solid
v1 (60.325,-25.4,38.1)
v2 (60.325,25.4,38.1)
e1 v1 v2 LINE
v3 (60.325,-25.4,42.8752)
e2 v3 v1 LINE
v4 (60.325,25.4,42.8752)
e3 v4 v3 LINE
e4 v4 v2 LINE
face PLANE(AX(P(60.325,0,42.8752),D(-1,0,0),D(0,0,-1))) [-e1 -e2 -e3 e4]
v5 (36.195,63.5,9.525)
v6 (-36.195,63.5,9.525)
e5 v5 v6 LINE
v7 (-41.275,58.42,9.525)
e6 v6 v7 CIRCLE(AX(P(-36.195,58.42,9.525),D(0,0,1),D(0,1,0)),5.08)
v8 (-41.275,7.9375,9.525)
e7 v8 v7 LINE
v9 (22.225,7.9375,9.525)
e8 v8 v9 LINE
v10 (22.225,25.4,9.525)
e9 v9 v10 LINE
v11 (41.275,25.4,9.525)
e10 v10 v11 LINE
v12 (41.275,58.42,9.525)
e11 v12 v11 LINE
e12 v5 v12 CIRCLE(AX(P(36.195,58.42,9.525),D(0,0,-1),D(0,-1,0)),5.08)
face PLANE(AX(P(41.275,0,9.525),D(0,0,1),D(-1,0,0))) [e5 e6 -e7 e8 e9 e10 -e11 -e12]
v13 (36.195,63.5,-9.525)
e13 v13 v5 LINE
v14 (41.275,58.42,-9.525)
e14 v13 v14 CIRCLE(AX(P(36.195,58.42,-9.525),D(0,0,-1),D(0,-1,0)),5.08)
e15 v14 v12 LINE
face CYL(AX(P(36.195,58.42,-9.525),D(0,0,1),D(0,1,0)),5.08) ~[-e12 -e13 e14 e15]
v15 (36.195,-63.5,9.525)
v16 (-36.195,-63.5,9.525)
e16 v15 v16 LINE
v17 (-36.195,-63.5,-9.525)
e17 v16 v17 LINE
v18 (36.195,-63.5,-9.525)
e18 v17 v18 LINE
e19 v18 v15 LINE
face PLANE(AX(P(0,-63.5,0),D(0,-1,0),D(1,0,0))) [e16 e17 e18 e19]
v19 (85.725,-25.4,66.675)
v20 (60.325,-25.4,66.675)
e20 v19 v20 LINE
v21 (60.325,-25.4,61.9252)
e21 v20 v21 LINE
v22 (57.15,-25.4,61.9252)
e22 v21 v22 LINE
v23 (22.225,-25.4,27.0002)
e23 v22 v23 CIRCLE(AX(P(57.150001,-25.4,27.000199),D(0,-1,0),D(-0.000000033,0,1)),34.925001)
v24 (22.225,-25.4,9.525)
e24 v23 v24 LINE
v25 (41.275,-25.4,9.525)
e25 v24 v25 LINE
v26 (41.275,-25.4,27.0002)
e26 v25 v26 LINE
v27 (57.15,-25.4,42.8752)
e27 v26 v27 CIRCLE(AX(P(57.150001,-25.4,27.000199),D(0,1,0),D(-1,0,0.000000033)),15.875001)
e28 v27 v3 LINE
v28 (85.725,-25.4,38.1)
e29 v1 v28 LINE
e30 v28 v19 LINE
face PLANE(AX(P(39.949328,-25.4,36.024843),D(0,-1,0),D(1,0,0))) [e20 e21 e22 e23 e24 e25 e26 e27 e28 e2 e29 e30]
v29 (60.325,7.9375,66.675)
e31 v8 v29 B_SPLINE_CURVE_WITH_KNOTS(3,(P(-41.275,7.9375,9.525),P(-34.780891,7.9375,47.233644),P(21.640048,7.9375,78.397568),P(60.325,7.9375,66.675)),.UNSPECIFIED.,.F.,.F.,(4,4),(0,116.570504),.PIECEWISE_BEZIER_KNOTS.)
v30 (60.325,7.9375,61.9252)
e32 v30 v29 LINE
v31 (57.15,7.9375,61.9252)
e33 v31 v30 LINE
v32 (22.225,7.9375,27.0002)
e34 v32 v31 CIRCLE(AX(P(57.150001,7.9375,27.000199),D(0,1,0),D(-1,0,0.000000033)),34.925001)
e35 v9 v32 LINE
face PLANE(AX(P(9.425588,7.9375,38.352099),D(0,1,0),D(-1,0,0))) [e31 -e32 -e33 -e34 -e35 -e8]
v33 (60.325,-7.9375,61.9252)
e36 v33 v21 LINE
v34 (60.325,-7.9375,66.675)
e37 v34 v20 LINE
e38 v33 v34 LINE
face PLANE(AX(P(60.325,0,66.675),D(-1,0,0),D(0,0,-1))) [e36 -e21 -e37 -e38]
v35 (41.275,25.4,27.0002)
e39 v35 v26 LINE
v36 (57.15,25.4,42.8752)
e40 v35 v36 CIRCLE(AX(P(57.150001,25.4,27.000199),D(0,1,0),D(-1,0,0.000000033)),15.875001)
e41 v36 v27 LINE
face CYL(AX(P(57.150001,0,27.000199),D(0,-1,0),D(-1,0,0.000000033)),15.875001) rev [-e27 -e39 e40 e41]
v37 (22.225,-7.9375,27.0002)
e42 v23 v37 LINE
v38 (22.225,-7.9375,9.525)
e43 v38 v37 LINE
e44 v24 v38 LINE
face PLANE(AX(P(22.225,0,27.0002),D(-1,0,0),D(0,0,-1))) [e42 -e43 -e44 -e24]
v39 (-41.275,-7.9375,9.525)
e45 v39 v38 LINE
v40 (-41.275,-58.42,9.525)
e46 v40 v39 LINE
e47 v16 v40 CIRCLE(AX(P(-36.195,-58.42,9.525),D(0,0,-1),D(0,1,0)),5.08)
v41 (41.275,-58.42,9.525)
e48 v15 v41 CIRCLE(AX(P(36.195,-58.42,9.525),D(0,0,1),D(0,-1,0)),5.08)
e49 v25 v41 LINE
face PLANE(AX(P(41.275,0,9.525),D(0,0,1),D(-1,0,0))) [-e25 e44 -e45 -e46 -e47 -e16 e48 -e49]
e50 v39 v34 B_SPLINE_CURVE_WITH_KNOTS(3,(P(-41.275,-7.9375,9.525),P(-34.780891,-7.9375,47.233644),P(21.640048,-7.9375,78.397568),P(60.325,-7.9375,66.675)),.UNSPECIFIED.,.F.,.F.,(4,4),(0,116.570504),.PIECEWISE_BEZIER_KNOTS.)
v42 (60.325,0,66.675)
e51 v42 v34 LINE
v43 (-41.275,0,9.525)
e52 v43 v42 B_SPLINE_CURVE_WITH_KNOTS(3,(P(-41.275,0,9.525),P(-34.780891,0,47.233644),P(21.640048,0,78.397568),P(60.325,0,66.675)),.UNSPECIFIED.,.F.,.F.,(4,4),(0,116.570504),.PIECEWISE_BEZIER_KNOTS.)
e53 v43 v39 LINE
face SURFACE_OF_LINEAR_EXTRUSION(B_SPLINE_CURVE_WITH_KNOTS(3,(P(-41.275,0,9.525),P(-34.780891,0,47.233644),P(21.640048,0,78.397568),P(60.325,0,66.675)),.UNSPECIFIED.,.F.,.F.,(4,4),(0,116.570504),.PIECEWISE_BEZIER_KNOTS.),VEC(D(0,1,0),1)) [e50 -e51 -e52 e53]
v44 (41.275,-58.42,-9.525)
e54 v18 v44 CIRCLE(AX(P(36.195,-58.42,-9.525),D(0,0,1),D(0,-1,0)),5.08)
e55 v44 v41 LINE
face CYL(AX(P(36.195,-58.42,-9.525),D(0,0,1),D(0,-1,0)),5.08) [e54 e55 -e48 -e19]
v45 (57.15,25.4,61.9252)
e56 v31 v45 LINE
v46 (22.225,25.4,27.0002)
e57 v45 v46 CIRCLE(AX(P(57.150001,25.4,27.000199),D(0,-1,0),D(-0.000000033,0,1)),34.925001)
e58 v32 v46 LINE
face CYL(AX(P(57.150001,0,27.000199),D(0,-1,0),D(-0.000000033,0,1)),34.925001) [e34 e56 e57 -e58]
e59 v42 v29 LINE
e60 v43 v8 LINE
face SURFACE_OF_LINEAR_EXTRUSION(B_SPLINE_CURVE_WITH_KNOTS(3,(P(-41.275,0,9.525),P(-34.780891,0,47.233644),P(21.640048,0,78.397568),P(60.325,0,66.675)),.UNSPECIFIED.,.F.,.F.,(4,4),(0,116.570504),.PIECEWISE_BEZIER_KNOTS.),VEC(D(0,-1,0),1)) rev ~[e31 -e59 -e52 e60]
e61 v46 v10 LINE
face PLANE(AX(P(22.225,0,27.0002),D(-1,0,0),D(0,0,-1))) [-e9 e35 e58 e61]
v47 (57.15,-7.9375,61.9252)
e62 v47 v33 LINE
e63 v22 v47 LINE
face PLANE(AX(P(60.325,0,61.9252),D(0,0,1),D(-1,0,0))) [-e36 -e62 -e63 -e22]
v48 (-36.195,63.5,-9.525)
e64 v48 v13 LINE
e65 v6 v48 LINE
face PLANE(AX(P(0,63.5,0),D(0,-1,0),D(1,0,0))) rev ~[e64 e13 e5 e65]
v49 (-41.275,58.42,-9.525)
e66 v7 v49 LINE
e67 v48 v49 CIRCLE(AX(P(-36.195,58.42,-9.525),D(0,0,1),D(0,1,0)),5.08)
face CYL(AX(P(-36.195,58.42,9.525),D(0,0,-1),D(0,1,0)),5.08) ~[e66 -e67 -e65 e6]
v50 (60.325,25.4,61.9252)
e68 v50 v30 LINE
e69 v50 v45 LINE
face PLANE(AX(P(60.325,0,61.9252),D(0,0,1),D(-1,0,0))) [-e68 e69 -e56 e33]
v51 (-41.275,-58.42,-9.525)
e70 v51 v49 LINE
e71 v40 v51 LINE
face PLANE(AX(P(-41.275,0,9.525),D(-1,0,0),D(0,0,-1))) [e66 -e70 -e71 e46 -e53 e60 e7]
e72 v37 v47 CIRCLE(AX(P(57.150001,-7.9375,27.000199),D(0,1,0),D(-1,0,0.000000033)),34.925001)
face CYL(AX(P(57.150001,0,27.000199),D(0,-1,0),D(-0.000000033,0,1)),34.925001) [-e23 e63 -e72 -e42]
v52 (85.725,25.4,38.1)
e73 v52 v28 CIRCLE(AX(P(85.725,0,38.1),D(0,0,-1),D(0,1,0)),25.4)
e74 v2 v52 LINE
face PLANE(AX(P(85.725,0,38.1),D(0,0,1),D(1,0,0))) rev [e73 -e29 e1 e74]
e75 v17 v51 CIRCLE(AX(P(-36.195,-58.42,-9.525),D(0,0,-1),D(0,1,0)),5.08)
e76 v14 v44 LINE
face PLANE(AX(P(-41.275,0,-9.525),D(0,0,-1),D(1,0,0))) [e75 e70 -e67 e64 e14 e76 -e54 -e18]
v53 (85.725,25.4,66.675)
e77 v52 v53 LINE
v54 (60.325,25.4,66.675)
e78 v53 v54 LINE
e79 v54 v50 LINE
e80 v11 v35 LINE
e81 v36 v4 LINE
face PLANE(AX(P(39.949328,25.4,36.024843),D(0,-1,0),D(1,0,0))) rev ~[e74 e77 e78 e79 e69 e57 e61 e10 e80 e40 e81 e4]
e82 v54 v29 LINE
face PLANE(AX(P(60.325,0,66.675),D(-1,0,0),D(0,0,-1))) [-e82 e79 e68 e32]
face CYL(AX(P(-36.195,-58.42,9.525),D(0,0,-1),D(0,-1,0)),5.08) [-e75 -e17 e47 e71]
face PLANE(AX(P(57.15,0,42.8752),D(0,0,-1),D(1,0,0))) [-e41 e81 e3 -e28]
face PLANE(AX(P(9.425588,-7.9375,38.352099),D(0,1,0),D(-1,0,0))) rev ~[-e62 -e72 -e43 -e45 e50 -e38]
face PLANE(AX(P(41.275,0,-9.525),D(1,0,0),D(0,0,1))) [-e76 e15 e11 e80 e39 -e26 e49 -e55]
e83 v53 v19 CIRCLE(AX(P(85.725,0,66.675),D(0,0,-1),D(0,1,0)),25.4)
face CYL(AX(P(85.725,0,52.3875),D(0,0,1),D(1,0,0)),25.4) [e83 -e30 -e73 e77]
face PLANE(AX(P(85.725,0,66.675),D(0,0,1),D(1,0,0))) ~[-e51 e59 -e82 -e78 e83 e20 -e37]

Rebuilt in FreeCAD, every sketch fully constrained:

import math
import FreeCAD as App
import Part
import Sketcher
from FreeCAD import Vector
Q = App.Units.Quantity


def edges_at(feature, points):
    """Names of the edges that pass closest to the given points."""
    edges = feature.Shape.Edges
    near = lambda p: min(range(len(edges)), key=lambda i: edges[i].distToShape(Part.Vertex(*p))[0])
    return sorted({f"Edge{near(p) + 1}" for p in points})

doc = App.newDocument("Part")
params = doc.addObject("Spreadsheet::Sheet", "Params")
for row, (alias, value) in enumerate([
    ("sketch1_width", "3.25 in"),
    ("sketch1_height", "0.75 in"),
    ("pad1_length", "5 in"),
    ("sketch2_width", "1 in"),
    ("sketch2_radius", "0.625 in"),
    ("sketch2_radius2", "1.375 in"),
    ("sketch2_width2", "0.125 in"),
    ("sketch2_height", "0.688 in"),
    ("pad2_length", "2 in"),
    ("sketch3_width", "2.5 in"),
    ("sketch3_radius", "1.375 in"),
    ("sketch3_height", "0.688 in"),
    ("pad3_length", "0.625 in"),
    ("sketch4_width", "1 in"),
    ("sketch4_height", "1.125 in"),
    ("revolution_angle", "360 deg"),
    ("fillet_radius", "0.2 in"),
], start=1):
    params.set(f"A{row}", alias)
    params.set(f"B{row}", "=" + value)
    params.setAlias(f"B{row}", alias)

body = doc.addObject("PartDesign::Body", "Body")

# Sketch on XZ plane
sketch1 = body.newObject("Sketcher::SketchObject", "Sketch")
sketch1.AttachmentSupport = (doc.getObject("XZ_Plane"), [""])
sketch1.MapMode = "FlatFace"
sketch1.addGeometry(Part.LineSegment(Vector(-41, -10, 0), Vector(41, -10, 0)), False)
sketch1.addGeometry(Part.LineSegment(Vector(41, -10, 0), Vector(41, 10, 0)), False)
sketch1.addGeometry(Part.LineSegment(Vector(41, 10, 0), Vector(-41, 10, 0)), False)
sketch1.addGeometry(Part.LineSegment(Vector(-41, 10, 0), Vector(-41, -10, 0)), False)
sketch1.addConstraint(Sketcher.Constraint("Coincident", 0, 2, 1, 1))
sketch1.addConstraint(Sketcher.Constraint("Coincident", 1, 2, 2, 1))
sketch1.addConstraint(Sketcher.Constraint("Coincident", 2, 2, 3, 1))
sketch1.addConstraint(Sketcher.Constraint("Coincident", 3, 2, 0, 1))
sketch1.addConstraint(Sketcher.Constraint("Horizontal", 0))
sketch1.addConstraint(Sketcher.Constraint("Vertical", 1))
sketch1.addConstraint(Sketcher.Constraint("Horizontal", 2))
sketch1.addConstraint(Sketcher.Constraint("Vertical", 3))
sketch1.addConstraint(Sketcher.Constraint("Symmetric", 0, 2, 2, 2, -1, 1))
sketch1.addConstraint(Sketcher.Constraint("DistanceX", 0, 1, 0, 2, Q("3.25 in")))
sketch1.addConstraint(Sketcher.Constraint("DistanceY", 1, 1, 1, 2, Q("0.75 in")))
sketch1.setExpression("Constraints[9]", "Params.sketch1_width")
sketch1.setExpression("Constraints[10]", "Params.sketch1_height")
pad1 = body.newObject("PartDesign::Pad", "Pad")
pad1.Profile = sketch1
pad1.setExpression("Length", "Params.pad1_length")
pad1.Midplane = True

# Sketch on XZ plane
sketch2 = body.newObject("Sketcher::SketchObject", "Sketch001")
sketch2.AttachmentSupport = (doc.getObject("XZ_Plane"), [""])
sketch2.MapMode = "FlatFace"
sketch2.addGeometry(Part.LineSegment(Vector(22.2, 9.5, 0), Vector(41.3, 9.5, 0)), False)
sketch2.addGeometry(Part.LineSegment(Vector(41.3, 9.5, 0), Vector(41.3, 27, 0)), False)
sketch2.addGeometry(Part.ArcOfCircle(Part.Circle(Vector(57.2, 27, 0), Vector(0, 0, 1), 15.9), math.radians(90), math.radians(180)), False)
sketch2.addGeometry(Part.LineSegment(Vector(57.1, 42.9, 0), Vector(60.3, 42.9, 0)), False)
sketch2.addGeometry(Part.LineSegment(Vector(60.3, 42.9, 0), Vector(60.3, 38.1, 0)), False)
sketch2.addGeometry(Part.LineSegment(Vector(60.3, 38.1, 0), Vector(85.7, 38.1, 0)), False)
sketch2.addGeometry(Part.LineSegment(Vector(85.7, 38.1, 0), Vector(85.7, 66.7, 0)), False)
sketch2.addGeometry(Part.LineSegment(Vector(85.7, 66.7, 0), Vector(60.3, 66.7, 0)), False)
sketch2.addGeometry(Part.LineSegment(Vector(60.3, 66.7, 0), Vector(60.3, 61.9, 0)), False)
sketch2.addGeometry(Part.LineSegment(Vector(60.3, 61.9, 0), Vector(57.1, 61.9, 0)), False)
sketch2.addGeometry(Part.ArcOfCircle(Part.Circle(Vector(57.2, 27, 0), Vector(0, 0, 1), 34.9), math.radians(90), math.radians(180)), False)
sketch2.addGeometry(Part.LineSegment(Vector(22.2, 27, 0), Vector(22.2, 9.5, 0)), False)
sketch2.addConstraint(Sketcher.Constraint("Coincident", 0, 2, 1, 1))
sketch2.addConstraint(Sketcher.Constraint("Tangent", 1, 2, 2, 2))
sketch2.addConstraint(Sketcher.Constraint("Tangent", 2, 1, 3, 1))
sketch2.addConstraint(Sketcher.Constraint("Coincident", 3, 2, 4, 1))
sketch2.addConstraint(Sketcher.Constraint("Coincident", 4, 2, 5, 1))
sketch2.addConstraint(Sketcher.Constraint("Coincident", 5, 2, 6, 1))
sketch2.addConstraint(Sketcher.Constraint("Coincident", 6, 2, 7, 1))
sketch2.addConstraint(Sketcher.Constraint("Coincident", 7, 2, 8, 1))
sketch2.addConstraint(Sketcher.Constraint("Coincident", 8, 2, 9, 1))
sketch2.addConstraint(Sketcher.Constraint("Tangent", 9, 2, 10, 1))
sketch2.addConstraint(Sketcher.Constraint("Tangent", 10, 2, 11, 1))
sketch2.addConstraint(Sketcher.Constraint("Coincident", 11, 2, 0, 1))
sketch2.addConstraint(Sketcher.Constraint("Horizontal", 0))
sketch2.addConstraint(Sketcher.Constraint("Vertical", 1))
sketch2.addConstraint(Sketcher.Constraint("Horizontal", 3))
sketch2.addConstraint(Sketcher.Constraint("Vertical", 4))
sketch2.addConstraint(Sketcher.Constraint("Horizontal", 5))
sketch2.addConstraint(Sketcher.Constraint("Vertical", 6))
sketch2.addConstraint(Sketcher.Constraint("Horizontal", 7))
sketch2.addConstraint(Sketcher.Constraint("Vertical", 8))
sketch2.addConstraint(Sketcher.Constraint("Horizontal", 9))
sketch2.addConstraint(Sketcher.Constraint("Vertical", 11))
sketch2.addConstraint(Sketcher.Constraint("Coincident", 10, 3, 2, 3))
sketch2.addConstraint(Sketcher.Constraint("Vertical", 4, 2, 7, 2))
sketch2.addConstraint(Sketcher.Constraint("DistanceX", 5, 1, 5, 2, Q("1 in")))
sketch2.addConstraint(Sketcher.Constraint("Radius", 2, Q("0.625 in")))
sketch2.addConstraint(Sketcher.Constraint("Radius", 10, Q("1.375 in")))
sketch2.addConstraint(Sketcher.Constraint("DistanceY", -1, 1, 4, 2, Q("1.5 in")))
sketch2.addConstraint(Sketcher.Constraint("DistanceX", 3, 1, 3, 2, Q("0.125 in")))
sketch2.addConstraint(Sketcher.Constraint("DistanceY", 1, 1, 1, 2, Q("0.688 in")))
sketch2.addConstraint(Sketcher.Constraint("DistanceY", 4, 2, 4, 1, Q("0.188 in")))
sketch2.addConstraint(Sketcher.Constraint("DistanceY", 6, 1, 6, 2, Q("1.125 in")))
sketch2.addConstraint(Sketcher.Constraint("DistanceX", -1, 1, 2, 3, Q("2.25 in")))
sketch2.setExpression("Constraints[24]", "Params.sketch2_width")
sketch2.setExpression("Constraints[25]", "Params.sketch2_radius")
sketch2.setExpression("Constraints[26]", "Params.sketch2_radius2")
sketch2.setExpression("Constraints[28]", "Params.sketch2_width2")
sketch2.setExpression("Constraints[29]", "Params.sketch2_height")
pad2 = body.newObject("PartDesign::Pad", "Pad001")
pad2.Profile = sketch2
pad2.setExpression("Length", "Params.pad2_length")
pad2.Midplane = True

# Sketch on XZ plane
sketch3 = body.newObject("Sketcher::SketchObject", "Sketch002")
sketch3.AttachmentSupport = (doc.getObject("XZ_Plane"), [""])
sketch3.MapMode = "FlatFace"
sketch3.addGeometry(Part.BSplineCurve([Vector(-41.275, 9.525, 0), Vector(-34.780891, 47.233644, 0), Vector(21.640048, 78.397568, 0), Vector(60.325, 66.675, 0)], [4, 4], [0, 116.570504], False, 3, [1, 1, 1, 1], False), False)
sketch3.addGeometry(Part.LineSegment(Vector(-41.275, 9.525, 0), Vector(22.225, 9.525, 0)), False)
sketch3.addGeometry(Part.LineSegment(Vector(22.225, 9.525, 0), Vector(22.225, 27.0002, 0)), False)
sketch3.addGeometry(Part.ArcOfCircle(Part.Circle(Vector(57.150001, 27.000199, 0), Vector(0, 0, 1), 34.925001), math.radians(90.000002), math.radians(179.999998)), False)
sketch3.addGeometry(Part.LineSegment(Vector(57.15, 61.9252, 0), Vector(60.325, 61.9252, 0)), False)
sketch3.addGeometry(Part.LineSegment(Vector(60.325, 61.9252, 0), Vector(60.325, 66.675, 0)), False)
sketch3.addConstraint(Sketcher.Constraint("Block", 0))
sketch3.addConstraint(Sketcher.Constraint("Coincident", 0, 1, 1, 1))
sketch3.addConstraint(Sketcher.Constraint("Coincident", 1, 2, 2, 1))
sketch3.addConstraint(Sketcher.Constraint("Tangent", 2, 2, 3, 2))
sketch3.addConstraint(Sketcher.Constraint("Tangent", 3, 1, 4, 1))
sketch3.addConstraint(Sketcher.Constraint("Coincident", 4, 2, 5, 1))
sketch3.addConstraint(Sketcher.Constraint("Coincident", 5, 2, 0, 2))
sketch3.addConstraint(Sketcher.Constraint("Horizontal", 1))
sketch3.addConstraint(Sketcher.Constraint("Vertical", 2))
sketch3.addConstraint(Sketcher.Constraint("Horizontal", 4))
sketch3.addConstraint(Sketcher.Constraint("Vertical", 5))
sketch3.addConstraint(Sketcher.Constraint("DistanceX", 1, 1, 1, 2, Q("2.5 in")))
sketch3.addConstraint(Sketcher.Constraint("Radius", 3, Q("1.375 in")))
sketch3.addConstraint(Sketcher.Constraint("DistanceY", 2, 1, 2, 2, Q("0.688 in")))
sketch3.setExpression("Constraints[11]", "Params.sketch3_width")
sketch3.setExpression("Constraints[12]", "Params.sketch3_radius")
sketch3.setExpression("Constraints[13]", "Params.sketch3_height")
pad3 = body.newObject("PartDesign::Pad", "Pad002")
pad3.Profile = sketch3
pad3.setExpression("Length", "Params.pad3_length")
pad3.Midplane = True

# Sketch on XZ plane
sketch4 = body.newObject("Sketcher::SketchObject", "Sketch003")
sketch4.AttachmentSupport = (doc.getObject("XZ_Plane"), [""])
sketch4.MapMode = "FlatFace"
sketch4.addGeometry(Part.LineSegment(Vector(86, 67, 0), Vector(86, 38, 0)), False)
sketch4.addGeometry(Part.LineSegment(Vector(86, 38, 0), Vector(111, 38, 0)), False)
sketch4.addGeometry(Part.LineSegment(Vector(111, 38, 0), Vector(111, 67, 0)), False)
sketch4.addGeometry(Part.LineSegment(Vector(111, 67, 0), Vector(86, 67, 0)), False)
sketch4.addGeometry(Part.LineSegment(Vector(86, 38, 0), Vector(86, 67, 0)), True)  # axis
sketch4.addConstraint(Sketcher.Constraint("Coincident", 0, 2, 1, 1))
sketch4.addConstraint(Sketcher.Constraint("Coincident", 1, 2, 2, 1))
sketch4.addConstraint(Sketcher.Constraint("Coincident", 2, 2, 3, 1))
sketch4.addConstraint(Sketcher.Constraint("Coincident", 3, 2, 0, 1))
sketch4.addConstraint(Sketcher.Constraint("Vertical", 0))
sketch4.addConstraint(Sketcher.Constraint("Horizontal", 1))
sketch4.addConstraint(Sketcher.Constraint("Vertical", 2))
sketch4.addConstraint(Sketcher.Constraint("Horizontal", 3))
sketch4.addConstraint(Sketcher.Constraint("Vertical", 4))
sketch4.addConstraint(Sketcher.Constraint("Coincident", 4, 1, 0, 2))
sketch4.addConstraint(Sketcher.Constraint("Horizontal", 2, 2, 4, 2))
sketch4.addConstraint(Sketcher.Constraint("DistanceX", 1, 1, 1, 2, Q("1 in")))
sketch4.addConstraint(Sketcher.Constraint("DistanceY", -1, 1, 0, 2, Q("1.5 in")))
sketch4.addConstraint(Sketcher.Constraint("DistanceY", 0, 2, 0, 1, Q("1.125 in")))
sketch4.addConstraint(Sketcher.Constraint("DistanceX", -1, 1, 0, 2, Q("3.375 in")))
sketch4.setExpression("Constraints[11]", "Params.sketch4_width")
sketch4.setExpression("Constraints[13]", "Params.sketch4_height")
revolution = body.newObject("PartDesign::Revolution", "Revolution")
revolution.Profile = sketch4
revolution.ReferenceAxis = (sketch4, ["Axis0"])
revolution.setExpression("Angle", "Params.revolution_angle")
doc.recompute()

fillet = body.newObject("PartDesign::Fillet", "Fillet")
fillet.Base = (revolution, edges_at(revolution, [
    (41.275, -63.5, 0),
    (-41.275, -63.5, 0),
    (-41.275, 63.5, 0),
    (41.275, 63.5, 0),
]))
fillet.setExpression("Radius", "Params.fillet_radius")

doc.recompute()
